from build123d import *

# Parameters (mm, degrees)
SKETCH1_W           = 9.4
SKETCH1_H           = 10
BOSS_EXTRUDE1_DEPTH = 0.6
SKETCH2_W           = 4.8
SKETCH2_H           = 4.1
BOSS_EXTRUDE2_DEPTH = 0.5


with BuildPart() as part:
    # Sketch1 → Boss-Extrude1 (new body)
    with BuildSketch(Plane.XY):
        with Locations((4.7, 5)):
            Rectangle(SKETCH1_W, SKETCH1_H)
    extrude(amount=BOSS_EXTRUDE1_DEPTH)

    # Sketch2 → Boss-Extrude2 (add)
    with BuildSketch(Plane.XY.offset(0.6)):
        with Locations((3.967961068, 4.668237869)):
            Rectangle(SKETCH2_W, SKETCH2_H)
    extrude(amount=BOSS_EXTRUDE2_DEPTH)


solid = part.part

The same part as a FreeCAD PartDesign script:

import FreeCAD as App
import Part
import Sketcher

V = App.Vector

doc = App.newDocument("Part")
body = doc.addObject("PartDesign::Body", "Body")

sketch1 = body.newObject("Sketcher::SketchObject", "Sketch")
sketch1.AttachmentSupport = (doc.getObject("XY_Plane"), [""])
sketch1.MapMode = "FlatFace"
sketch1.addGeometry([
    Part.LineSegment(V(0, 10, 0), V(0, 0, 0)),
    Part.LineSegment(V(0, 0, 0), V(9.4, 0, 0)),
    Part.LineSegment(V(9.4, 0, 0), V(9.4, 10, 0)),
    Part.LineSegment(V(9.4, 10, 0), V(0, 10, 0)),
], False)
sketch1.addConstraint([
    Sketcher.Constraint("Coincident", 0, 2, 1, 1),
    Sketcher.Constraint("Coincident", 1, 2, 2, 1),
    Sketcher.Constraint("Coincident", 2, 2, 3, 1),
    Sketcher.Constraint("Coincident", 3, 2, 0, 1),
    Sketcher.Constraint("Vertical", 0),
    Sketcher.Constraint("Horizontal", 1),
    Sketcher.Constraint("Vertical", 2),
    Sketcher.Constraint("Horizontal", 3),
    Sketcher.Constraint("Coincident", 0, 2, -1, 1),
    Sketcher.Constraint("DistanceY", 0, 2, 0, 1, 10.0),
    Sketcher.Constraint("DistanceX", 1, 1, 1, 2, 9.4),
])
pad1 = body.newObject("PartDesign::Pad", "Pad")
pad1.Profile = sketch1
pad1.Length = 0.6

sketch2 = body.newObject("Sketcher::SketchObject", "Sketch001")
sketch2.AttachmentSupport = (doc.getObject("XY_Plane"), [""])
sketch2.MapMode = "FlatFace"
sketch2.AttachmentOffset = App.Placement(V(0, 0, 0.6), App.Rotation())
sketch2.addGeometry([
    Part.LineSegment(V(1.567961, 6.718238, 0), V(1.567961, 2.618238, 0)),
    Part.LineSegment(V(1.567961, 2.618238, 0), V(6.367961, 2.618238, 0)),
    Part.LineSegment(V(6.367961, 2.618238, 0), V(6.367961, 6.718238, 0)),
    Part.LineSegment(V(6.367961, 6.718238, 0), V(1.567961, 6.718238, 0)),
], False)
sketch2.addConstraint([
    Sketcher.Constraint("Coincident", 0, 2, 1, 1),
    Sketcher.Constraint("Coincident", 1, 2, 2, 1),
    Sketcher.Constraint("Coincident", 2, 2, 3, 1),
    Sketcher.Constraint("Coincident", 3, 2, 0, 1),
    Sketcher.Constraint("Vertical", 0),
    Sketcher.Constraint("Horizontal", 1),
    Sketcher.Constraint("Vertical", 2),
    Sketcher.Constraint("Horizontal", 3),
    Sketcher.Constraint("DistanceX", 1, 1, 1, 2, 4.8),
    Sketcher.Constraint("DistanceY", 0, 2, 0, 1, 4.1),
    Sketcher.Constraint("DistanceX", -1, 1, 0, 2, 1.567961),
    Sketcher.Constraint("DistanceY", -1, 1, 0, 2, 2.618238),
])
pad2 = body.newObject("PartDesign::Pad", "Pad001")
pad2.Profile = sketch2
pad2.Length = 0.5

doc.recompute()
